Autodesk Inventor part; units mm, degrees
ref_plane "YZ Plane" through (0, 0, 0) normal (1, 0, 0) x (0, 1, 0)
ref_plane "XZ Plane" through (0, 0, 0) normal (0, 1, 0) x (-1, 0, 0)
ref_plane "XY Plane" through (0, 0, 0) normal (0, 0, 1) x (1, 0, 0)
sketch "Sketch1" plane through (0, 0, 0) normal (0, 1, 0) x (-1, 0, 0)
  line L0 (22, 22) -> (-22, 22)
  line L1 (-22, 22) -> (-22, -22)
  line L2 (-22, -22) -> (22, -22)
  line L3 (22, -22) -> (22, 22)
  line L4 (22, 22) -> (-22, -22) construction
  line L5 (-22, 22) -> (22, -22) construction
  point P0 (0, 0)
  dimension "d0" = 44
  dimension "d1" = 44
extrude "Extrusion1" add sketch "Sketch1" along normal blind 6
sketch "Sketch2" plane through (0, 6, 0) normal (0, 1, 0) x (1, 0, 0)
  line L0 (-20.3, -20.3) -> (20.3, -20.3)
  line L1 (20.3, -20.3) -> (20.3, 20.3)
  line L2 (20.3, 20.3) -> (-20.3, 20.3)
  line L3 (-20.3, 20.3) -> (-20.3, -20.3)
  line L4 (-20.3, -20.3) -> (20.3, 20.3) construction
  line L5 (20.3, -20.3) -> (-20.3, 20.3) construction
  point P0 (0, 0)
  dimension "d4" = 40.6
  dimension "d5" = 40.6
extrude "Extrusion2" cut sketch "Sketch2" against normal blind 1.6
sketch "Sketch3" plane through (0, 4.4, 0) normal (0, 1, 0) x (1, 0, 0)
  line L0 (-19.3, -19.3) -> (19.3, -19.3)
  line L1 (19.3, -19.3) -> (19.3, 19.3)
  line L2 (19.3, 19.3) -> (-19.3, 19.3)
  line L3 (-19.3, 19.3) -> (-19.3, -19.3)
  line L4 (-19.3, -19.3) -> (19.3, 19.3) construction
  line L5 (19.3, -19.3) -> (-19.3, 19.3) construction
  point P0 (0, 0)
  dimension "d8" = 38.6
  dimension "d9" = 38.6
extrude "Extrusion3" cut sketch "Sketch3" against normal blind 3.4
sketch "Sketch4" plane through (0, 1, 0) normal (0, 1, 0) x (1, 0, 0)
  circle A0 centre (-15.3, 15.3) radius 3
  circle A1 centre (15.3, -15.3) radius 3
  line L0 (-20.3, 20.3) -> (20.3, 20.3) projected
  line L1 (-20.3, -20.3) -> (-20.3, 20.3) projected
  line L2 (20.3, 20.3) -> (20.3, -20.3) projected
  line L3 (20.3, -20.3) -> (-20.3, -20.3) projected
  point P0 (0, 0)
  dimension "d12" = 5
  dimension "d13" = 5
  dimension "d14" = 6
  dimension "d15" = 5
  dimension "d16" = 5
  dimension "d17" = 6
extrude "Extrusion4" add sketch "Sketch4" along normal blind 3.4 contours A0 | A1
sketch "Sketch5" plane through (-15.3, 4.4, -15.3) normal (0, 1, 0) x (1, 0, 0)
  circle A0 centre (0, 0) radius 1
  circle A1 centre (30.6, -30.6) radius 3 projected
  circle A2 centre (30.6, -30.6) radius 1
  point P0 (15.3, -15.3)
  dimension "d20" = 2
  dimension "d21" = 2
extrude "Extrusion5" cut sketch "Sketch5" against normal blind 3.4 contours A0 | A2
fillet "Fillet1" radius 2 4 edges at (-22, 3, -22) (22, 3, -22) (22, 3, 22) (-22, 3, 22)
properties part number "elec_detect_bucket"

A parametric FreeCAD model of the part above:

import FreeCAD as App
import Part
import Sketcher
from FreeCAD import Vector
Q = App.Units.Quantity


def edges_at(feature, points):
    """Names of the edges that pass closest to the given points."""
    edges = feature.Shape.Edges
    near = lambda p: min(range(len(edges)), key=lambda i: edges[i].distToShape(Part.Vertex(*p))[0])
    return sorted({f"Edge{near(p) + 1}" for p in points})

doc = App.newDocument("Part")
body = doc.addObject("PartDesign::Body", "Body")

sketch1 = body.newObject("Sketcher::SketchObject", "Sketch")
sketch1.AttachmentSupport = (doc.getObject("XZ_Plane"), [""])
sketch1.MapMode = "FlatFace"
sketch1.addGeometry([
    Part.LineSegment(Vector(-22, -22, 0), Vector(-22, 22, 0)),
    Part.LineSegment(Vector(-22, 22, 0), Vector(22, 22, 0)),
    Part.LineSegment(Vector(22, 22, 0), Vector(22, -22, 0)),
    Part.LineSegment(Vector(22, -22, 0), Vector(-22, -22, 0)),
], False)
sketch1.addConstraint([
    Sketcher.Constraint("Coincident", 0, 2, 1, 1),
    Sketcher.Constraint("Coincident", 1, 2, 2, 1),
    Sketcher.Constraint("Coincident", 2, 2, 3, 1),
    Sketcher.Constraint("Coincident", 3, 2, 0, 1),
    Sketcher.Constraint("Vertical", 0),
    Sketcher.Constraint("Horizontal", 1),
    Sketcher.Constraint("Vertical", 2),
    Sketcher.Constraint("Horizontal", 3),
    Sketcher.Constraint("Symmetric", 0, 2, 2, 2, -1, 1),
    Sketcher.Constraint("Equal", 3, 0),
    Sketcher.Constraint("DistanceX", 1, 1, 1, 2, Q("44 mm")),
])
pad1 = body.newObject("PartDesign::Pad", "Pad")
pad1.Profile = sketch1
pad1.Length = 6
pad1.Reversed = True

sketch2 = body.newObject("Sketcher::SketchObject", "Sketch001")
sketch2.AttachmentSupport = (doc.getObject("XZ_Plane"), [""])
sketch2.MapMode = "FlatFace"
sketch2.AttachmentOffset = App.Placement(Vector(0, 0, -6), App.Rotation())
sketch2.addGeometry([
    Part.LineSegment(Vector(-20, -20, 0), Vector(-20, 20, 0)),
    Part.LineSegment(Vector(-20, 20, 0), Vector(20, 20, 0)),
    Part.LineSegment(Vector(20, 20, 0), Vector(20, -20, 0)),
    Part.LineSegment(Vector(20, -20, 0), Vector(-20, -20, 0)),
], False)
sketch2.addConstraint([
    Sketcher.Constraint("Coincident", 0, 2, 1, 1),
    Sketcher.Constraint("Coincident", 1, 2, 2, 1),
    Sketcher.Constraint("Coincident", 2, 2, 3, 1),
    Sketcher.Constraint("Coincident", 3, 2, 0, 1),
    Sketcher.Constraint("Vertical", 0),
    Sketcher.Constraint("Horizontal", 1),
    Sketcher.Constraint("Vertical", 2),
    Sketcher.Constraint("Horizontal", 3),
    Sketcher.Constraint("Symmetric", 0, 2, 2, 2, -1, 1),
    Sketcher.Constraint("Equal", 3, 0),
    Sketcher.Constraint("DistanceX", 1, 1, 1, 2, Q("40.6 mm")),
])
pocket1 = body.newObject("PartDesign::Pocket", "Pocket")
pocket1.Profile = sketch2
pocket1.Length = 1.6
pocket1.Reversed = True

sketch3 = body.newObject("Sketcher::SketchObject", "Sketch002")
sketch3.AttachmentSupport = (doc.getObject("XZ_Plane"), [""])
sketch3.MapMode = "FlatFace"
sketch3.AttachmentOffset = App.Placement(Vector(0, 0, -4.4), App.Rotation())
sketch3.addGeometry([
    Part.LineSegment(Vector(-19, -19, 0), Vector(-19, 19, 0)),
    Part.LineSegment(Vector(-19, 19, 0), Vector(19, 19, 0)),
    Part.LineSegment(Vector(19, 19, 0), Vector(19, -19, 0)),
    Part.LineSegment(Vector(19, -19, 0), Vector(-19, -19, 0)),
], False)
sketch3.addConstraint([
    Sketcher.Constraint("Coincident", 0, 2, 1, 1),
    Sketcher.Constraint("Coincident", 1, 2, 2, 1),
    Sketcher.Constraint("Coincident", 2, 2, 3, 1),
    Sketcher.Constraint("Coincident", 3, 2, 0, 1),
    Sketcher.Constraint("Vertical", 0),
    Sketcher.Constraint("Horizontal", 1),
    Sketcher.Constraint("Vertical", 2),
    Sketcher.Constraint("Horizontal", 3),
    Sketcher.Constraint("Symmetric", 0, 2, 2, 2, -1, 1),
    Sketcher.Constraint("Equal", 3, 0),
    Sketcher.Constraint("DistanceX", 1, 1, 1, 2, Q("38.6 mm")),
])
pocket2 = body.newObject("PartDesign::Pocket", "Pocket001")
pocket2.Profile = sketch3
pocket2.Length = 3.4
pocket2.Reversed = True

sketch4 = body.newObject("Sketcher::SketchObject", "Sketch003")
sketch4.AttachmentSupport = (doc.getObject("XZ_Plane"), [""])
sketch4.MapMode = "FlatFace"
sketch4.AttachmentOffset = App.Placement(Vector(0, 0, -1), App.Rotation())
sketch4.addGeometry([
    Part.Circle(Vector(-15.3, -15.3, 0), Vector(0, 0, 1), 3),
    Part.Circle(Vector(15.3, 15.3, 0), Vector(0, 0, 1), 3),
], False)
sketch4.addConstraint([
    Sketcher.Constraint("Equal", 0, 1),
    Sketcher.Constraint("Symmetric", 0, 3, 1, 3, -1, 1),
    Sketcher.Constraint("Diameter", 0, Q("6 mm")),
    Sketcher.Constraint("DistanceX", 0, 3, -1, 1, Q("15.3 mm")),
    Sketcher.Constraint("DistanceY", 0, 3, -1, 1, Q("15.3 mm")),
])
pad2 = body.newObject("PartDesign::Pad", "Pad001")
pad2.Profile = sketch4
pad2.Length = 3.4
pad2.Reversed = True

sketch5 = body.newObject("Sketcher::SketchObject", "Sketch004")
sketch5.AttachmentSupport = (doc.getObject("XZ_Plane"), [""])
sketch5.MapMode = "FlatFace"
sketch5.AttachmentOffset = App.Placement(Vector(0, 0, -4.4), App.Rotation())
sketch5.addGeometry([
    Part.Circle(Vector(-15.3, -15.3, 0), Vector(0, 0, 1), 1),
    Part.Circle(Vector(15.3, 15.3, 0), Vector(0, 0, 1), 1),
], False)
sketch5.addConstraint([
    Sketcher.Constraint("Equal", 0, 1),
    Sketcher.Constraint("Symmetric", 0, 3, 1, 3, -1, 1),
    Sketcher.Constraint("Diameter", 0, Q("2 mm")),
    Sketcher.Constraint("DistanceX", 0, 3, -1, 1, Q("15.3 mm")),
    Sketcher.Constraint("DistanceY", 0, 3, -1, 1, Q("15.3 mm")),
])
pocket3 = body.newObject("PartDesign::Pocket", "Pocket002")
pocket3.Profile = sketch5
pocket3.Length = 3.4
pocket3.Reversed = True
doc.recompute()

fillet = body.newObject("PartDesign::Fillet", "Fillet")
fillet.Base = (pocket3, edges_at(pocket3, [
    (-22, 3, -22),
    (22, 3, -22),
    (22, 3, 22),
    (-22, 3, 22),
]))
fillet.Radius = 2

doc.recompute()
